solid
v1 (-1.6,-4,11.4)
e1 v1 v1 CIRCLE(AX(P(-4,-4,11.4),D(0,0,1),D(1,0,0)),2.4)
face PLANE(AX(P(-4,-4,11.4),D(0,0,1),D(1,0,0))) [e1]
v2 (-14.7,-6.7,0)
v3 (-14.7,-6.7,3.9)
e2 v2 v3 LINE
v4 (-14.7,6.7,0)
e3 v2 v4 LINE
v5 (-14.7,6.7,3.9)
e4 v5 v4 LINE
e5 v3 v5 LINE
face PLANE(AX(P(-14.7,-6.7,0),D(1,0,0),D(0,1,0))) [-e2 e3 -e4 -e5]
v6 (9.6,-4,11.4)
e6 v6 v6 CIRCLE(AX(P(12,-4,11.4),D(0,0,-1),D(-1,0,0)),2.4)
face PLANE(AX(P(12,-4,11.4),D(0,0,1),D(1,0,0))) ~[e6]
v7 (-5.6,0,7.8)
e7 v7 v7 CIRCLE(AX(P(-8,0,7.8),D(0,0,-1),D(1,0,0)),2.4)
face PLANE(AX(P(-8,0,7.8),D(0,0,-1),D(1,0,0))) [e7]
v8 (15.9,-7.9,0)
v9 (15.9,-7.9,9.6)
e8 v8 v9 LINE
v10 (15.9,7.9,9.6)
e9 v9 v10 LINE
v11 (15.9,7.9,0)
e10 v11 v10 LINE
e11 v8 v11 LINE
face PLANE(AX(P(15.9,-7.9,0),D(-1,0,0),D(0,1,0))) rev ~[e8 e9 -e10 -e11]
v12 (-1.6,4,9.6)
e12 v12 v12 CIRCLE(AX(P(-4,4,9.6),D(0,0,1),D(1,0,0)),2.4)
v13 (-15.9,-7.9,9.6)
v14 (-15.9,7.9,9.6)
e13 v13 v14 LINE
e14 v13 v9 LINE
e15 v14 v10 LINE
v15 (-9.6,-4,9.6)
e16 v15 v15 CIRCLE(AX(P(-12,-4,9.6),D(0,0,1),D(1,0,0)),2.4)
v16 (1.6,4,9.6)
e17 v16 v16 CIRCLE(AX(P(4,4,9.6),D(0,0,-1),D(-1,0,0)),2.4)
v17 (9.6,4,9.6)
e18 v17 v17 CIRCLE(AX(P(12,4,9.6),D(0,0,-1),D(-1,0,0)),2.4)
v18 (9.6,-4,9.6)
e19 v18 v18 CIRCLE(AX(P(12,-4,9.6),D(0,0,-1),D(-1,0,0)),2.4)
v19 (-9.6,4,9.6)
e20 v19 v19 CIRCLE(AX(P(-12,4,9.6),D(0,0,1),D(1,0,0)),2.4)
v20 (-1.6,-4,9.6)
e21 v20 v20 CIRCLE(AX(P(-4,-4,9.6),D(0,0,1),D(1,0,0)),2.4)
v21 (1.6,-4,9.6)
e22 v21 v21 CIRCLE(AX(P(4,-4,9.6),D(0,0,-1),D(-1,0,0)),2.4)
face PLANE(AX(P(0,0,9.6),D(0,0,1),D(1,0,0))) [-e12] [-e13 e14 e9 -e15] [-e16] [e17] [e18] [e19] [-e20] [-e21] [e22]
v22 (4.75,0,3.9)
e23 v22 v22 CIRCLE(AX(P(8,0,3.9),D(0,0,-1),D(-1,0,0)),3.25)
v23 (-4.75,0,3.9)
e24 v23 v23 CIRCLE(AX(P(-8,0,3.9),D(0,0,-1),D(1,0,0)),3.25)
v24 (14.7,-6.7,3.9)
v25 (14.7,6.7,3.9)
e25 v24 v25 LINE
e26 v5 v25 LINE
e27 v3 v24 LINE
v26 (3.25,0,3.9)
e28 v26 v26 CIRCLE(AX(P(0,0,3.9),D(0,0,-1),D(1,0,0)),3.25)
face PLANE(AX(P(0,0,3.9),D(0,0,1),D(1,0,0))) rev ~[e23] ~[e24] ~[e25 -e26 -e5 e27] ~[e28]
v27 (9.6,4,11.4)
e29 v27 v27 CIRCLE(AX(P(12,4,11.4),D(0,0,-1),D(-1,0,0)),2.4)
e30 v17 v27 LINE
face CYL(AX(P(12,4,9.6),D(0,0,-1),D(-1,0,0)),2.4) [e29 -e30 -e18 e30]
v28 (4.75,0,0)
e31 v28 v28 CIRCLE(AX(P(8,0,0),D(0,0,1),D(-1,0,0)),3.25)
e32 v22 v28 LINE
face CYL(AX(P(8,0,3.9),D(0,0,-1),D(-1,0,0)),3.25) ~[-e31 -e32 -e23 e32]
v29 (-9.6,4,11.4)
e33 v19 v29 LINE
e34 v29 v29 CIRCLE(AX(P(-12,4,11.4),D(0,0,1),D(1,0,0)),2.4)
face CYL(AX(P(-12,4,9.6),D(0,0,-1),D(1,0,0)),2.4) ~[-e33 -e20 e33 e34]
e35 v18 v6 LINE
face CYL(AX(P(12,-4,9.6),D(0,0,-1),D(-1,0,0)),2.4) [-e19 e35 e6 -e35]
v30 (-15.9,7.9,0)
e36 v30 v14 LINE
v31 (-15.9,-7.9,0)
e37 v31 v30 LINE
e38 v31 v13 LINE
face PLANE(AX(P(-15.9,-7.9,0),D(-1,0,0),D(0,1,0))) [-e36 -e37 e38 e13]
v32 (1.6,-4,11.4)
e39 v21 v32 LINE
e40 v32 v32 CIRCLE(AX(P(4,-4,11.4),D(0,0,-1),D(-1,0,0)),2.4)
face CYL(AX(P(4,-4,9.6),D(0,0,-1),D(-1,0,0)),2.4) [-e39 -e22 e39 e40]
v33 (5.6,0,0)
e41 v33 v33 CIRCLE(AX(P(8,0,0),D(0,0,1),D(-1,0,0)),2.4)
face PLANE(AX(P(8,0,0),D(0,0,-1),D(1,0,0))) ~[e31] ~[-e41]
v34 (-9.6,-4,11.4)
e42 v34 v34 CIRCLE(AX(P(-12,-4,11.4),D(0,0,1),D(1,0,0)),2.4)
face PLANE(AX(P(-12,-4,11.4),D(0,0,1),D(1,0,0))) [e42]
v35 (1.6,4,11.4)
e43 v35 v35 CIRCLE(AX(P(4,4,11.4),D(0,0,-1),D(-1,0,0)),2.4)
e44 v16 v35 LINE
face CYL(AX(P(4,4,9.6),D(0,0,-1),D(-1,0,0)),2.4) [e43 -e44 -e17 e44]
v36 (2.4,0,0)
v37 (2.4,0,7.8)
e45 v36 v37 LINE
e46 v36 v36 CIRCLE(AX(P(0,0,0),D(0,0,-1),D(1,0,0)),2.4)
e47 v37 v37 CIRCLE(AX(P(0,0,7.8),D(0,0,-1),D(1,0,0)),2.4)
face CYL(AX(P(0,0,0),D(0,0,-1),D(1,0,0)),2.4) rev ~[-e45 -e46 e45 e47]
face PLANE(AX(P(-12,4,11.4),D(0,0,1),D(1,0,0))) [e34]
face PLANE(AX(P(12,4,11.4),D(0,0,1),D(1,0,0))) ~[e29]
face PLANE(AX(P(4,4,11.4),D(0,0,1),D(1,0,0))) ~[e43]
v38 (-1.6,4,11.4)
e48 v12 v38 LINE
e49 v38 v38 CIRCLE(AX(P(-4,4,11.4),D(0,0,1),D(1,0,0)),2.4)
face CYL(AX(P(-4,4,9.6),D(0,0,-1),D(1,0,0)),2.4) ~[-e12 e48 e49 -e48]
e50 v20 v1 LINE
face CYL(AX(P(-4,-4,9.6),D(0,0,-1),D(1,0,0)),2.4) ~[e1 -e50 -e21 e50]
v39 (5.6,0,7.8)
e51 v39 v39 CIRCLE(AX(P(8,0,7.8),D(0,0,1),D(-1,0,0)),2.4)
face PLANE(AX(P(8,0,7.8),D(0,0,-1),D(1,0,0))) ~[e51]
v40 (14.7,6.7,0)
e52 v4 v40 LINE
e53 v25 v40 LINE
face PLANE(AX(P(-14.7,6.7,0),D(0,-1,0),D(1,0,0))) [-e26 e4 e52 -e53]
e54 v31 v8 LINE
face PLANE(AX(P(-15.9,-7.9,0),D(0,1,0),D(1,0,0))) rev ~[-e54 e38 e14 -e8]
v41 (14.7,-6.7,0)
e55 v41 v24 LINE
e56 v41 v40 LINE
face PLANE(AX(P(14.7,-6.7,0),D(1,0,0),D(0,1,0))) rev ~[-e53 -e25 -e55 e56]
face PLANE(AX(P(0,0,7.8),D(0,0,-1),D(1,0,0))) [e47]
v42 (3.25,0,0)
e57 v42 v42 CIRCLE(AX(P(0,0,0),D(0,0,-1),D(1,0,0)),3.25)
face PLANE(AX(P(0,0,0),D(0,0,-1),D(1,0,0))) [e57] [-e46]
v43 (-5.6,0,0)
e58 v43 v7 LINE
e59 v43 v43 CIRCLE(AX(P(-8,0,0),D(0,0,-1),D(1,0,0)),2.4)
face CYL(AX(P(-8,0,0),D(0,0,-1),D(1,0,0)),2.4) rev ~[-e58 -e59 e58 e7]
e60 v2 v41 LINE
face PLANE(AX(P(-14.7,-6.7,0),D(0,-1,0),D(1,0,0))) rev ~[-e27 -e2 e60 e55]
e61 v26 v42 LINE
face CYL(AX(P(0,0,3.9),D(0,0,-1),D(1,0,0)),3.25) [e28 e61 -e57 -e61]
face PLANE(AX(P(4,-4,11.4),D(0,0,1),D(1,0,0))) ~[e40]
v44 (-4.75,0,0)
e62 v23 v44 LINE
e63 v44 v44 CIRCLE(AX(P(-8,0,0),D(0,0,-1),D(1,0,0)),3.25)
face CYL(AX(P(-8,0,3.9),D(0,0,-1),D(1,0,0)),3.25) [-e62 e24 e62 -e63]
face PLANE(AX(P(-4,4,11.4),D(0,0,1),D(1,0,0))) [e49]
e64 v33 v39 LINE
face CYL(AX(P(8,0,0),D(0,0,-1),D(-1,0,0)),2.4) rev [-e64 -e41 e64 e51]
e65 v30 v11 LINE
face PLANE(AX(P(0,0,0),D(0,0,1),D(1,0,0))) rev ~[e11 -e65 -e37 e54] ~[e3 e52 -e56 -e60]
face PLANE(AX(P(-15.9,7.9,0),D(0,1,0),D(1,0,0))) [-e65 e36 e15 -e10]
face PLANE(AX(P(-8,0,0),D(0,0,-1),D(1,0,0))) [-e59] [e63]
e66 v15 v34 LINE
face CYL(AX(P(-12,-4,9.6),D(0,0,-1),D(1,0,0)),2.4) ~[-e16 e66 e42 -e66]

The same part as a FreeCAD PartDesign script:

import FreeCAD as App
import Part
import Sketcher
Q = App.Units.Quantity


def add_polygon(sketch, points):
    """Adds a closed chain of lines whose ends are joined by coincident constraints."""
    first, n = sketch.GeometryCount, len(points)
    for a, b in zip(points, points[1:] + points[:1]):
        sketch.addGeometry(Part.LineSegment(App.Vector(*a, 0), App.Vector(*b, 0)), False)
    for i in range(n):
        sketch.addConstraint(Sketcher.Constraint("Coincident", first + i, 2, first + (i + 1) % n, 1))

doc = App.newDocument("Part")
body = doc.addObject("PartDesign::Body", "Body")

sketch1 = doc.addObject("Sketcher::SketchObject", "Sketch")
body.addObject(sketch1)
sketch1.AttachmentSupport = (doc.XY_Plane, [""])
sketch1.MapMode = "FlatFace"
add_polygon(sketch1, [(-16, 8), (-16, -8), (16, -8), (16, 8)])
sketch1.addConstraint([
    Sketcher.Constraint("Vertical", 0),
    Sketcher.Constraint("Horizontal", 1),
    Sketcher.Constraint("Vertical", 2),
    Sketcher.Constraint("Horizontal", 3),
    Sketcher.Constraint("Symmetric", 0, 2, 2, 2, -1, 1),
    Sketcher.Constraint("DistanceX", 1, 1, 1, 2, Q("31.8 mm")),
    Sketcher.Constraint("DistanceY", 0, 2, 0, 1, Q("15.8 mm")),
])
pad1 = doc.addObject("PartDesign::Pad", "Pad")
body.addObject(pad1)
pad1.Profile = sketch1
pad1.Length = 9.6

sketch2 = doc.addObject("Sketcher::SketchObject", "Sketch001")
body.addObject(sketch2)
sketch2.AttachmentSupport = (doc.XY_Plane, [""])
sketch2.MapMode = "FlatFace"
add_polygon(sketch2, [(-15, 7), (-15, -7), (15, -7), (15, 7)])
sketch2.addConstraint([
    Sketcher.Constraint("Vertical", 0),
    Sketcher.Constraint("Horizontal", 1),
    Sketcher.Constraint("Vertical", 2),
    Sketcher.Constraint("Horizontal", 3),
    Sketcher.Constraint("Symmetric", 0, 2, 2, 2, -1, 1),
    Sketcher.Constraint("DistanceX", 1, 1, 1, 2, Q("29.4 mm")),
    Sketcher.Constraint("DistanceY", 0, 2, 0, 1, Q("13.4 mm")),
])
pocket1 = doc.addObject("PartDesign::Pocket", "Pocket")
body.addObject(pocket1)
pocket1.Profile = sketch2
pocket1.Length = 7.8
pocket1.Midplane = True

sketch3 = doc.addObject("Sketcher::SketchObject", "Sketch002")
body.addObject(sketch3)
sketch3.AttachmentSupport = (doc.XY_Plane, [""])
sketch3.MapMode = "FlatFace"
sketch3.AttachmentOffset = App.Placement(App.Vector(0, 0, 9.6), App.Rotation())
sketch3.addGeometry(Part.Circle(App.Vector(-12, 4, 0), App.Vector(0, 0, 1), 2.4), False)
sketch3.addConstraint([
    Sketcher.Constraint("Diameter", 0, Q("4.8 mm")),
    Sketcher.Constraint("DistanceX", 0, 3, -1, 1, Q("12 mm")),
    Sketcher.Constraint("DistanceY", -1, 1, 0, 3, Q("4 mm")),
])
pad2 = doc.addObject("PartDesign::Pad", "Pad001")
body.addObject(pad2)
pad2.Profile = sketch3
pad2.Length = 1.8

sketch4 = doc.addObject("Sketcher::SketchObject", "Sketch003")
body.addObject(sketch4)
sketch4.AttachmentSupport = (doc.XY_Plane, [""])
sketch4.MapMode = "FlatFace"
sketch4.AttachmentOffset = App.Placement(App.Vector(0, 0, 9.6), App.Rotation())
sketch4.addGeometry(Part.Circle(App.Vector(-4, 4, 0), App.Vector(0, 0, 1), 2.4), False)
sketch4.addConstraint([
    Sketcher.Constraint("Diameter", 0, Q("4.8 mm")),
    Sketcher.Constraint("DistanceX", 0, 3, -1, 1, Q("4 mm")),
    Sketcher.Constraint("DistanceY", -1, 1, 0, 3, Q("4 mm")),
])
pad3 = doc.addObject("PartDesign::Pad", "Pad002")
body.addObject(pad3)
pad3.Profile = sketch4
pad3.Length = 1.8

sketch5 = doc.addObject("Sketcher::SketchObject", "Sketch004")
body.addObject(sketch5)
sketch5.AttachmentSupport = (doc.XY_Plane, [""])
sketch5.MapMode = "FlatFace"
sketch5.AttachmentOffset = App.Placement(App.Vector(0, 0, 9.6), App.Rotation())
sketch5.addGeometry(Part.Circle(App.Vector(-12, -4, 0), App.Vector(0, 0, 1), 2.4), False)
sketch5.addConstraint([
    Sketcher.Constraint("Diameter", 0, Q("4.8 mm")),
    Sketcher.Constraint("DistanceX", 0, 3, -1, 1, Q("12 mm")),
    Sketcher.Constraint("DistanceY", 0, 3, -1, 1, Q("4 mm")),
])
pad4 = doc.addObject("PartDesign::Pad", "Pad003")
body.addObject(pad4)
pad4.Profile = sketch5
pad4.Length = 1.8

sketch6 = doc.addObject("Sketcher::SketchObject", "Sketch005")
body.addObject(sketch6)
sketch6.AttachmentSupport = (doc.XY_Plane, [""])
sketch6.MapMode = "FlatFace"
sketch6.AttachmentOffset = App.Placement(App.Vector(0, 0, 9.6), App.Rotation())
sketch6.addGeometry(Part.Circle(App.Vector(-4, -4, 0), App.Vector(0, 0, 1), 2.4), False)
sketch6.addConstraint([
    Sketcher.Constraint("Diameter", 0, Q("4.8 mm")),
    Sketcher.Constraint("DistanceX", 0, 3, -1, 1, Q("4 mm")),
    Sketcher.Constraint("DistanceY", 0, 3, -1, 1, Q("4 mm")),
])
pad5 = doc.addObject("PartDesign::Pad", "Pad004")
body.addObject(pad5)
pad5.Profile = sketch6
pad5.Length = 1.8
doc.recompute()

mirrored = doc.addObject("PartDesign::Mirrored", "Mirrored")
body.addObject(mirrored)
mirrored.Originals = [pad2, pad3, pad4, pad5]
mirrored.MirrorPlane = (doc.YZ_Plane, [""])
body.Tip = mirrored

sketch7 = doc.addObject("Sketcher::SketchObject", "Sketch006")
body.addObject(sketch7)
sketch7.AttachmentSupport = (doc.XY_Plane, [""])
sketch7.MapMode = "FlatFace"
sketch7.AttachmentOffset = App.Placement(App.Vector(0, 0, 3.9), App.Rotation())
sketch7.addGeometry(Part.Circle(App.Vector(0, 0, 0), App.Vector(0, 0, 1), 3.2), False)
sketch7.addConstraint([
    Sketcher.Constraint("Coincident", 0, 3, -1, 1),
    Sketcher.Constraint("Diameter", 0, Q("6.5 mm")),
])
pad6 = doc.addObject("PartDesign::Pad", "Pad005")
body.addObject(pad6)
pad6.Profile = sketch7
pad6.Length = 7.8
pad6.Midplane = True

sketch8 = doc.addObject("Sketcher::SketchObject", "Sketch007")
body.addObject(sketch8)
sketch8.AttachmentSupport = (doc.XY_Plane, [""])
sketch8.MapMode = "FlatFace"
sketch8.addGeometry(Part.Circle(App.Vector(0, 0, 0), App.Vector(0, 0, 1), 2.4), False)
sketch8.addConstraint([
    Sketcher.Constraint("Coincident", 0, 3, -1, 1),
    Sketcher.Constraint("Diameter", 0, Q("4.8 mm")),
])
pocket2 = doc.addObject("PartDesign::Pocket", "Pocket001")
body.addObject(pocket2)
pocket2.Profile = sketch8
pocket2.Length = 7.8
pocket2.Reversed = True

sketch9 = doc.addObject("Sketcher::SketchObject", "Sketch008")
body.addObject(sketch9)
sketch9.AttachmentSupport = (doc.XY_Plane, [""])
sketch9.MapMode = "FlatFace"
sketch9.AttachmentOffset = App.Placement(App.Vector(0, 0, 3.9), App.Rotation())
sketch9.addGeometry(Part.Circle(App.Vector(-8, 0, 0), App.Vector(0, 0, 1), 3.2), False)
sketch9.addConstraint([
    Sketcher.Constraint("PointOnObject", 0, 3, -1),
    Sketcher.Constraint("Diameter", 0, Q("6.5 mm")),
    Sketcher.Constraint("DistanceX", 0, 3, -1, 1, Q("8 mm")),
])
pad7 = doc.addObject("PartDesign::Pad", "Pad006")
body.addObject(pad7)
pad7.Profile = sketch9
pad7.Length = 7.8
pad7.Midplane = True

sketch10 = doc.addObject("Sketcher::SketchObject", "Sketch009")
body.addObject(sketch10)
sketch10.AttachmentSupport = (doc.XY_Plane, [""])
sketch10.MapMode = "FlatFace"
sketch10.addGeometry(Part.Circle(App.Vector(-8, 0, 0), App.Vector(0, 0, 1), 2.4), False)
sketch10.addConstraint([
    Sketcher.Constraint("PointOnObject", 0, 3, -1),
    Sketcher.Constraint("Diameter", 0, Q("4.8 mm")),
    Sketcher.Constraint("DistanceX", 0, 3, -1, 1, Q("8 mm")),
])
pocket3 = doc.addObject("PartDesign::Pocket", "Pocket002")
body.addObject(pocket3)
pocket3.Profile = sketch10
pocket3.Length = 7.8
pocket3.Reversed = True
doc.recompute()

mirrored2 = doc.addObject("PartDesign::Mirrored", "Mirrored001")
body.addObject(mirrored2)
mirrored2.Originals = [pad7]
mirrored2.MirrorPlane = (doc.YZ_Plane, [""])
body.Tip = mirrored2
doc.recompute()

mirrored3 = doc.addObject("PartDesign::Mirrored", "Mirrored002")
body.addObject(mirrored3)
mirrored3.Originals = [pocket3]
mirrored3.MirrorPlane = (doc.YZ_Plane, [""])
body.Tip = mirrored3

doc.recompute()
